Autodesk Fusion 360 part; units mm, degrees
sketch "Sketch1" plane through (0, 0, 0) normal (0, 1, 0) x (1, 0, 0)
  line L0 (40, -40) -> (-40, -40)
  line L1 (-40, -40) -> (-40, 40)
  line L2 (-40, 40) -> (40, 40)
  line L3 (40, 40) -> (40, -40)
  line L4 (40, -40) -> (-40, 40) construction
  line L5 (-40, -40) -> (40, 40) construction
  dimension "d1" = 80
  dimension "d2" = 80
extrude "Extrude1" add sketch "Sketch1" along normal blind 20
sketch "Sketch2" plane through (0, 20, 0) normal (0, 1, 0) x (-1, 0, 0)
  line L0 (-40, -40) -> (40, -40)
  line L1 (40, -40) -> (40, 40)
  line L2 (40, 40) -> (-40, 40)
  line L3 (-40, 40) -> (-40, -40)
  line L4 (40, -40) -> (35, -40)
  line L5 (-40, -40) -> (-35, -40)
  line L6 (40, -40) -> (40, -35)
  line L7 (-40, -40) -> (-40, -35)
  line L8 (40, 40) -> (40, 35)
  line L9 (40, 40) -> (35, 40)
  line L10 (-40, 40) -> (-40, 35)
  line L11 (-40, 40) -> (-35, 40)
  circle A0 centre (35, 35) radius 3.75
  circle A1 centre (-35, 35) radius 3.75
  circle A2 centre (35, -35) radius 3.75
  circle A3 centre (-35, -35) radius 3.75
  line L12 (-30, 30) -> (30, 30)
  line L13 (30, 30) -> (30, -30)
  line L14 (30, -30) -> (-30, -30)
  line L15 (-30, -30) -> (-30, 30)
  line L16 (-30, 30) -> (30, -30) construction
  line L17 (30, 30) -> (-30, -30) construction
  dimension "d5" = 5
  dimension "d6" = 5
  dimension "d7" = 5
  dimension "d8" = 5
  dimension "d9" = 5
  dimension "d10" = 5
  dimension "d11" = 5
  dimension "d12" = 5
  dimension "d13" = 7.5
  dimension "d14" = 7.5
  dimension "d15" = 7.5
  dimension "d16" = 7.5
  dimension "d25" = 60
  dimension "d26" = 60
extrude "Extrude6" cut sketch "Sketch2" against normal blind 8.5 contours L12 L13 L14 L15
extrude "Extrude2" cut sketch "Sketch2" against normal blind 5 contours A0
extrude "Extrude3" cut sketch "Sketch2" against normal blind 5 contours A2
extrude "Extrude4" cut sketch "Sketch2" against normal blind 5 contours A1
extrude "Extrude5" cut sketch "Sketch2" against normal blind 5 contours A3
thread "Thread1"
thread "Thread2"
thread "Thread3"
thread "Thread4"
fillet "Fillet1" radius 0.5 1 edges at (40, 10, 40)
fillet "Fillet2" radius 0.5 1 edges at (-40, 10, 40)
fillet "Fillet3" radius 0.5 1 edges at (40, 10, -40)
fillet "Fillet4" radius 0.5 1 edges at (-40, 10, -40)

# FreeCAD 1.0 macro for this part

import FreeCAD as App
import Part
import Sketcher
Q = App.Units.Quantity


def edges_at(feature, points):
    """Names of the edges that pass closest to the given points."""
    edges = feature.Shape.Edges
    near = lambda p: min(range(len(edges)), key=lambda i: edges[i].distToShape(Part.Vertex(*p))[0])
    return sorted({f"Edge{near(p) + 1}" for p in points})

doc = App.newDocument("Part")
body = doc.addObject("PartDesign::Body", "Body")

# Sketch on XZ plane
sketch1 = body.newObject("Sketcher::SketchObject", "Sketch")
sketch1.AttachmentSupport = (doc.getObject("XZ_Plane"), [""])
sketch1.MapMode = "FlatFace"
sketch1.addGeometry(Part.LineSegment(App.Vector(-40, 40, 0), App.Vector(40, 40, 0)), False)
sketch1.addGeometry(Part.LineSegment(App.Vector(40, 40, 0), App.Vector(40, -40, 0)), False)
sketch1.addGeometry(Part.LineSegment(App.Vector(40, -40, 0), App.Vector(-40, -40, 0)), False)
sketch1.addGeometry(Part.LineSegment(App.Vector(-40, -40, 0), App.Vector(-40, 40, 0)), False)
sketch1.addConstraint(Sketcher.Constraint("Coincident", 0, 2, 1, 1))
sketch1.addConstraint(Sketcher.Constraint("Coincident", 1, 2, 2, 1))
sketch1.addConstraint(Sketcher.Constraint("Coincident", 2, 2, 3, 1))
sketch1.addConstraint(Sketcher.Constraint("Coincident", 3, 2, 0, 1))
sketch1.addConstraint(Sketcher.Constraint("Horizontal", 0))
sketch1.addConstraint(Sketcher.Constraint("Vertical", 1))
sketch1.addConstraint(Sketcher.Constraint("Horizontal", 2))
sketch1.addConstraint(Sketcher.Constraint("Vertical", 3))
sketch1.addConstraint(Sketcher.Constraint("Symmetric", 0, 2, 2, 2, -1, 1))
sketch1.addConstraint(Sketcher.Constraint("Equal", 2, 1))
sketch1.addConstraint(Sketcher.Constraint("DistanceX", 0, 1, 0, 2, Q("80 mm")))
pad1 = body.newObject("PartDesign::Pad", "Pad")
pad1.Profile = sketch1
pad1.Length = 20
pad1.Reversed = True

# Sketch on XZ plane
sketch2 = body.newObject("Sketcher::SketchObject", "Sketch001")
sketch2.AttachmentSupport = (doc.getObject("XZ_Plane"), [""])
sketch2.MapMode = "FlatFace"
sketch2.AttachmentOffset = App.Placement(App.Vector(0, 0, -20), App.Rotation())
sketch2.addGeometry(Part.LineSegment(App.Vector(-30, 30, 0), App.Vector(30, 30, 0)), False)
sketch2.addGeometry(Part.LineSegment(App.Vector(30, 30, 0), App.Vector(30, -30, 0)), False)
sketch2.addGeometry(Part.LineSegment(App.Vector(30, -30, 0), App.Vector(-30, -30, 0)), False)
sketch2.addGeometry(Part.LineSegment(App.Vector(-30, -30, 0), App.Vector(-30, 30, 0)), False)
sketch2.addConstraint(Sketcher.Constraint("Coincident", 0, 2, 1, 1))
sketch2.addConstraint(Sketcher.Constraint("Coincident", 1, 2, 2, 1))
sketch2.addConstraint(Sketcher.Constraint("Coincident", 2, 2, 3, 1))
sketch2.addConstraint(Sketcher.Constraint("Coincident", 3, 2, 0, 1))
sketch2.addConstraint(Sketcher.Constraint("Horizontal", 0))
sketch2.addConstraint(Sketcher.Constraint("Vertical", 1))
sketch2.addConstraint(Sketcher.Constraint("Horizontal", 2))
sketch2.addConstraint(Sketcher.Constraint("Vertical", 3))
sketch2.addConstraint(Sketcher.Constraint("Symmetric", 0, 2, 2, 2, -1, 1))
sketch2.addConstraint(Sketcher.Constraint("Equal", 2, 1))
sketch2.addConstraint(Sketcher.Constraint("DistanceX", 0, 1, 0, 2, Q("60 mm")))
pocket1 = body.newObject("PartDesign::Pocket", "Pocket")
pocket1.Profile = sketch2
pocket1.Length = 8.5
pocket1.Reversed = True

# Sketch on XZ plane
sketch3 = body.newObject("Sketcher::SketchObject", "Sketch002")
sketch3.AttachmentSupport = (doc.getObject("XZ_Plane"), [""])
sketch3.MapMode = "FlatFace"
sketch3.AttachmentOffset = App.Placement(App.Vector(0, 0, -20), App.Rotation())
sketch3.addGeometry(Part.Circle(App.Vector(-35, 35, 0), App.Vector(0, 0, 1), 3.8), False)
sketch3.addConstraint(Sketcher.Constraint("Diameter", 0, Q("7.5 mm")))
sketch3.addConstraint(Sketcher.Constraint("DistanceX", 0, 3, -1, 1, Q("35 mm")))
sketch3.addConstraint(Sketcher.Constraint("DistanceY", -1, 1, 0, 3, Q("35 mm")))
pocket2 = body.newObject("PartDesign::Pocket", "Pocket001")
pocket2.Profile = sketch3
pocket2.Length = 5
pocket2.Reversed = True

# Sketch on XZ plane
sketch4 = body.newObject("Sketcher::SketchObject", "Sketch003")
sketch4.AttachmentSupport = (doc.getObject("XZ_Plane"), [""])
sketch4.MapMode = "FlatFace"
sketch4.AttachmentOffset = App.Placement(App.Vector(0, 0, -20), App.Rotation())
sketch4.addGeometry(Part.Circle(App.Vector(-35, -35, 0), App.Vector(0, 0, 1), 3.8), False)
sketch4.addConstraint(Sketcher.Constraint("Diameter", 0, Q("7.5 mm")))
sketch4.addConstraint(Sketcher.Constraint("DistanceX", 0, 3, -1, 1, Q("35 mm")))
sketch4.addConstraint(Sketcher.Constraint("DistanceY", 0, 3, -1, 1, Q("35 mm")))
pocket3 = body.newObject("PartDesign::Pocket", "Pocket002")
pocket3.Profile = sketch4
pocket3.Length = 5
pocket3.Reversed = True

# Sketch on XZ plane
sketch5 = body.newObject("Sketcher::SketchObject", "Sketch004")
sketch5.AttachmentSupport = (doc.getObject("XZ_Plane"), [""])
sketch5.MapMode = "FlatFace"
sketch5.AttachmentOffset = App.Placement(App.Vector(0, 0, -20), App.Rotation())
sketch5.addGeometry(Part.Circle(App.Vector(35, 35, 0), App.Vector(0, 0, 1), 3.8), False)
sketch5.addConstraint(Sketcher.Constraint("Diameter", 0, Q("7.5 mm")))
sketch5.addConstraint(Sketcher.Constraint("DistanceX", -1, 1, 0, 3, Q("35 mm")))
sketch5.addConstraint(Sketcher.Constraint("DistanceY", -1, 1, 0, 3, Q("35 mm")))
pocket4 = body.newObject("PartDesign::Pocket", "Pocket003")
pocket4.Profile = sketch5
pocket4.Length = 5
pocket4.Reversed = True

# Sketch on XZ plane
sketch6 = body.newObject("Sketcher::SketchObject", "Sketch005")
sketch6.AttachmentSupport = (doc.getObject("XZ_Plane"), [""])
sketch6.MapMode = "FlatFace"
sketch6.AttachmentOffset = App.Placement(App.Vector(0, 0, -20), App.Rotation())
sketch6.addGeometry(Part.Circle(App.Vector(35, -35, 0), App.Vector(0, 0, 1), 3.8), False)
sketch6.addConstraint(Sketcher.Constraint("Diameter", 0, Q("7.5 mm")))
sketch6.addConstraint(Sketcher.Constraint("DistanceX", -1, 1, 0, 3, Q("35 mm")))
sketch6.addConstraint(Sketcher.Constraint("DistanceY", 0, 3, -1, 1, Q("35 mm")))
pocket5 = body.newObject("PartDesign::Pocket", "Pocket004")
pocket5.Profile = sketch6
pocket5.Length = 5
pocket5.Reversed = True
doc.recompute()

fillet = body.newObject("PartDesign::Fillet", "Fillet")
fillet.Base = (pocket5, edges_at(pocket5, [(40, 10, 40)]))
fillet.Radius = 0.5
doc.recompute()

fillet2 = body.newObject("PartDesign::Fillet", "Fillet001")
fillet2.Base = (fillet, edges_at(fillet, [(-40, 10, 40)]))
fillet2.Radius = 0.5
doc.recompute()

fillet3 = body.newObject("PartDesign::Fillet", "Fillet002")
fillet3.Base = (fillet2, edges_at(fillet2, [(40, 10, -40)]))
fillet3.Radius = 0.5
doc.recompute()

fillet4 = body.newObject("PartDesign::Fillet", "Fillet003")
fillet4.Base = (fillet3, edges_at(fillet3, [(-40, 10, -40)]))
fillet4.Radius = 0.5

doc.recompute()
